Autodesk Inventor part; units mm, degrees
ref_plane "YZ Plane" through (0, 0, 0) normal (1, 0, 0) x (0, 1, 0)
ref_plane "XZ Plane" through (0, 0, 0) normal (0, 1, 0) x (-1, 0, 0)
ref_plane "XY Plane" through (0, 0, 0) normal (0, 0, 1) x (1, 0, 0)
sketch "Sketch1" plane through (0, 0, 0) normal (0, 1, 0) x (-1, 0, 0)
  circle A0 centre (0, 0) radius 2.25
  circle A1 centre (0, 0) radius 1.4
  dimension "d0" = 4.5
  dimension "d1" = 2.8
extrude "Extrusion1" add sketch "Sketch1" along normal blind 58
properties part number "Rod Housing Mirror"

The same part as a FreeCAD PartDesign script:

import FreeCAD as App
import Part
import Sketcher
from FreeCAD import Vector
Q = App.Units.Quantity

doc = App.newDocument("Part")
body = doc.addObject("PartDesign::Body", "Body")

# Sketch on XZ plane
sketch1 = body.newObject("Sketcher::SketchObject", "Sketch")
sketch1.AttachmentSupport = (doc.getObject("XZ_Plane"), [""])
sketch1.MapMode = "FlatFace"
sketch1.addGeometry(Part.Circle(Vector(0, 0, 0), Vector(0, 0, 1), 2.2), False)
sketch1.addGeometry(Part.Circle(Vector(0, 0, 0), Vector(0, 0, 1), 1.4), False)
sketch1.addConstraint(Sketcher.Constraint("Coincident", 0, 3, -1, 1))
sketch1.addConstraint(Sketcher.Constraint("Coincident", 1, 3, -1, 1))
sketch1.addConstraint(Sketcher.Constraint("Diameter", 0, Q("4.5 mm")))
sketch1.addConstraint(Sketcher.Constraint("Diameter", 1, Q("2.8 mm")))
pad1 = body.newObject("PartDesign::Pad", "Pad")
pad1.Profile = sketch1
pad1.Length = 58
pad1.Reversed = True

doc.recompute()
